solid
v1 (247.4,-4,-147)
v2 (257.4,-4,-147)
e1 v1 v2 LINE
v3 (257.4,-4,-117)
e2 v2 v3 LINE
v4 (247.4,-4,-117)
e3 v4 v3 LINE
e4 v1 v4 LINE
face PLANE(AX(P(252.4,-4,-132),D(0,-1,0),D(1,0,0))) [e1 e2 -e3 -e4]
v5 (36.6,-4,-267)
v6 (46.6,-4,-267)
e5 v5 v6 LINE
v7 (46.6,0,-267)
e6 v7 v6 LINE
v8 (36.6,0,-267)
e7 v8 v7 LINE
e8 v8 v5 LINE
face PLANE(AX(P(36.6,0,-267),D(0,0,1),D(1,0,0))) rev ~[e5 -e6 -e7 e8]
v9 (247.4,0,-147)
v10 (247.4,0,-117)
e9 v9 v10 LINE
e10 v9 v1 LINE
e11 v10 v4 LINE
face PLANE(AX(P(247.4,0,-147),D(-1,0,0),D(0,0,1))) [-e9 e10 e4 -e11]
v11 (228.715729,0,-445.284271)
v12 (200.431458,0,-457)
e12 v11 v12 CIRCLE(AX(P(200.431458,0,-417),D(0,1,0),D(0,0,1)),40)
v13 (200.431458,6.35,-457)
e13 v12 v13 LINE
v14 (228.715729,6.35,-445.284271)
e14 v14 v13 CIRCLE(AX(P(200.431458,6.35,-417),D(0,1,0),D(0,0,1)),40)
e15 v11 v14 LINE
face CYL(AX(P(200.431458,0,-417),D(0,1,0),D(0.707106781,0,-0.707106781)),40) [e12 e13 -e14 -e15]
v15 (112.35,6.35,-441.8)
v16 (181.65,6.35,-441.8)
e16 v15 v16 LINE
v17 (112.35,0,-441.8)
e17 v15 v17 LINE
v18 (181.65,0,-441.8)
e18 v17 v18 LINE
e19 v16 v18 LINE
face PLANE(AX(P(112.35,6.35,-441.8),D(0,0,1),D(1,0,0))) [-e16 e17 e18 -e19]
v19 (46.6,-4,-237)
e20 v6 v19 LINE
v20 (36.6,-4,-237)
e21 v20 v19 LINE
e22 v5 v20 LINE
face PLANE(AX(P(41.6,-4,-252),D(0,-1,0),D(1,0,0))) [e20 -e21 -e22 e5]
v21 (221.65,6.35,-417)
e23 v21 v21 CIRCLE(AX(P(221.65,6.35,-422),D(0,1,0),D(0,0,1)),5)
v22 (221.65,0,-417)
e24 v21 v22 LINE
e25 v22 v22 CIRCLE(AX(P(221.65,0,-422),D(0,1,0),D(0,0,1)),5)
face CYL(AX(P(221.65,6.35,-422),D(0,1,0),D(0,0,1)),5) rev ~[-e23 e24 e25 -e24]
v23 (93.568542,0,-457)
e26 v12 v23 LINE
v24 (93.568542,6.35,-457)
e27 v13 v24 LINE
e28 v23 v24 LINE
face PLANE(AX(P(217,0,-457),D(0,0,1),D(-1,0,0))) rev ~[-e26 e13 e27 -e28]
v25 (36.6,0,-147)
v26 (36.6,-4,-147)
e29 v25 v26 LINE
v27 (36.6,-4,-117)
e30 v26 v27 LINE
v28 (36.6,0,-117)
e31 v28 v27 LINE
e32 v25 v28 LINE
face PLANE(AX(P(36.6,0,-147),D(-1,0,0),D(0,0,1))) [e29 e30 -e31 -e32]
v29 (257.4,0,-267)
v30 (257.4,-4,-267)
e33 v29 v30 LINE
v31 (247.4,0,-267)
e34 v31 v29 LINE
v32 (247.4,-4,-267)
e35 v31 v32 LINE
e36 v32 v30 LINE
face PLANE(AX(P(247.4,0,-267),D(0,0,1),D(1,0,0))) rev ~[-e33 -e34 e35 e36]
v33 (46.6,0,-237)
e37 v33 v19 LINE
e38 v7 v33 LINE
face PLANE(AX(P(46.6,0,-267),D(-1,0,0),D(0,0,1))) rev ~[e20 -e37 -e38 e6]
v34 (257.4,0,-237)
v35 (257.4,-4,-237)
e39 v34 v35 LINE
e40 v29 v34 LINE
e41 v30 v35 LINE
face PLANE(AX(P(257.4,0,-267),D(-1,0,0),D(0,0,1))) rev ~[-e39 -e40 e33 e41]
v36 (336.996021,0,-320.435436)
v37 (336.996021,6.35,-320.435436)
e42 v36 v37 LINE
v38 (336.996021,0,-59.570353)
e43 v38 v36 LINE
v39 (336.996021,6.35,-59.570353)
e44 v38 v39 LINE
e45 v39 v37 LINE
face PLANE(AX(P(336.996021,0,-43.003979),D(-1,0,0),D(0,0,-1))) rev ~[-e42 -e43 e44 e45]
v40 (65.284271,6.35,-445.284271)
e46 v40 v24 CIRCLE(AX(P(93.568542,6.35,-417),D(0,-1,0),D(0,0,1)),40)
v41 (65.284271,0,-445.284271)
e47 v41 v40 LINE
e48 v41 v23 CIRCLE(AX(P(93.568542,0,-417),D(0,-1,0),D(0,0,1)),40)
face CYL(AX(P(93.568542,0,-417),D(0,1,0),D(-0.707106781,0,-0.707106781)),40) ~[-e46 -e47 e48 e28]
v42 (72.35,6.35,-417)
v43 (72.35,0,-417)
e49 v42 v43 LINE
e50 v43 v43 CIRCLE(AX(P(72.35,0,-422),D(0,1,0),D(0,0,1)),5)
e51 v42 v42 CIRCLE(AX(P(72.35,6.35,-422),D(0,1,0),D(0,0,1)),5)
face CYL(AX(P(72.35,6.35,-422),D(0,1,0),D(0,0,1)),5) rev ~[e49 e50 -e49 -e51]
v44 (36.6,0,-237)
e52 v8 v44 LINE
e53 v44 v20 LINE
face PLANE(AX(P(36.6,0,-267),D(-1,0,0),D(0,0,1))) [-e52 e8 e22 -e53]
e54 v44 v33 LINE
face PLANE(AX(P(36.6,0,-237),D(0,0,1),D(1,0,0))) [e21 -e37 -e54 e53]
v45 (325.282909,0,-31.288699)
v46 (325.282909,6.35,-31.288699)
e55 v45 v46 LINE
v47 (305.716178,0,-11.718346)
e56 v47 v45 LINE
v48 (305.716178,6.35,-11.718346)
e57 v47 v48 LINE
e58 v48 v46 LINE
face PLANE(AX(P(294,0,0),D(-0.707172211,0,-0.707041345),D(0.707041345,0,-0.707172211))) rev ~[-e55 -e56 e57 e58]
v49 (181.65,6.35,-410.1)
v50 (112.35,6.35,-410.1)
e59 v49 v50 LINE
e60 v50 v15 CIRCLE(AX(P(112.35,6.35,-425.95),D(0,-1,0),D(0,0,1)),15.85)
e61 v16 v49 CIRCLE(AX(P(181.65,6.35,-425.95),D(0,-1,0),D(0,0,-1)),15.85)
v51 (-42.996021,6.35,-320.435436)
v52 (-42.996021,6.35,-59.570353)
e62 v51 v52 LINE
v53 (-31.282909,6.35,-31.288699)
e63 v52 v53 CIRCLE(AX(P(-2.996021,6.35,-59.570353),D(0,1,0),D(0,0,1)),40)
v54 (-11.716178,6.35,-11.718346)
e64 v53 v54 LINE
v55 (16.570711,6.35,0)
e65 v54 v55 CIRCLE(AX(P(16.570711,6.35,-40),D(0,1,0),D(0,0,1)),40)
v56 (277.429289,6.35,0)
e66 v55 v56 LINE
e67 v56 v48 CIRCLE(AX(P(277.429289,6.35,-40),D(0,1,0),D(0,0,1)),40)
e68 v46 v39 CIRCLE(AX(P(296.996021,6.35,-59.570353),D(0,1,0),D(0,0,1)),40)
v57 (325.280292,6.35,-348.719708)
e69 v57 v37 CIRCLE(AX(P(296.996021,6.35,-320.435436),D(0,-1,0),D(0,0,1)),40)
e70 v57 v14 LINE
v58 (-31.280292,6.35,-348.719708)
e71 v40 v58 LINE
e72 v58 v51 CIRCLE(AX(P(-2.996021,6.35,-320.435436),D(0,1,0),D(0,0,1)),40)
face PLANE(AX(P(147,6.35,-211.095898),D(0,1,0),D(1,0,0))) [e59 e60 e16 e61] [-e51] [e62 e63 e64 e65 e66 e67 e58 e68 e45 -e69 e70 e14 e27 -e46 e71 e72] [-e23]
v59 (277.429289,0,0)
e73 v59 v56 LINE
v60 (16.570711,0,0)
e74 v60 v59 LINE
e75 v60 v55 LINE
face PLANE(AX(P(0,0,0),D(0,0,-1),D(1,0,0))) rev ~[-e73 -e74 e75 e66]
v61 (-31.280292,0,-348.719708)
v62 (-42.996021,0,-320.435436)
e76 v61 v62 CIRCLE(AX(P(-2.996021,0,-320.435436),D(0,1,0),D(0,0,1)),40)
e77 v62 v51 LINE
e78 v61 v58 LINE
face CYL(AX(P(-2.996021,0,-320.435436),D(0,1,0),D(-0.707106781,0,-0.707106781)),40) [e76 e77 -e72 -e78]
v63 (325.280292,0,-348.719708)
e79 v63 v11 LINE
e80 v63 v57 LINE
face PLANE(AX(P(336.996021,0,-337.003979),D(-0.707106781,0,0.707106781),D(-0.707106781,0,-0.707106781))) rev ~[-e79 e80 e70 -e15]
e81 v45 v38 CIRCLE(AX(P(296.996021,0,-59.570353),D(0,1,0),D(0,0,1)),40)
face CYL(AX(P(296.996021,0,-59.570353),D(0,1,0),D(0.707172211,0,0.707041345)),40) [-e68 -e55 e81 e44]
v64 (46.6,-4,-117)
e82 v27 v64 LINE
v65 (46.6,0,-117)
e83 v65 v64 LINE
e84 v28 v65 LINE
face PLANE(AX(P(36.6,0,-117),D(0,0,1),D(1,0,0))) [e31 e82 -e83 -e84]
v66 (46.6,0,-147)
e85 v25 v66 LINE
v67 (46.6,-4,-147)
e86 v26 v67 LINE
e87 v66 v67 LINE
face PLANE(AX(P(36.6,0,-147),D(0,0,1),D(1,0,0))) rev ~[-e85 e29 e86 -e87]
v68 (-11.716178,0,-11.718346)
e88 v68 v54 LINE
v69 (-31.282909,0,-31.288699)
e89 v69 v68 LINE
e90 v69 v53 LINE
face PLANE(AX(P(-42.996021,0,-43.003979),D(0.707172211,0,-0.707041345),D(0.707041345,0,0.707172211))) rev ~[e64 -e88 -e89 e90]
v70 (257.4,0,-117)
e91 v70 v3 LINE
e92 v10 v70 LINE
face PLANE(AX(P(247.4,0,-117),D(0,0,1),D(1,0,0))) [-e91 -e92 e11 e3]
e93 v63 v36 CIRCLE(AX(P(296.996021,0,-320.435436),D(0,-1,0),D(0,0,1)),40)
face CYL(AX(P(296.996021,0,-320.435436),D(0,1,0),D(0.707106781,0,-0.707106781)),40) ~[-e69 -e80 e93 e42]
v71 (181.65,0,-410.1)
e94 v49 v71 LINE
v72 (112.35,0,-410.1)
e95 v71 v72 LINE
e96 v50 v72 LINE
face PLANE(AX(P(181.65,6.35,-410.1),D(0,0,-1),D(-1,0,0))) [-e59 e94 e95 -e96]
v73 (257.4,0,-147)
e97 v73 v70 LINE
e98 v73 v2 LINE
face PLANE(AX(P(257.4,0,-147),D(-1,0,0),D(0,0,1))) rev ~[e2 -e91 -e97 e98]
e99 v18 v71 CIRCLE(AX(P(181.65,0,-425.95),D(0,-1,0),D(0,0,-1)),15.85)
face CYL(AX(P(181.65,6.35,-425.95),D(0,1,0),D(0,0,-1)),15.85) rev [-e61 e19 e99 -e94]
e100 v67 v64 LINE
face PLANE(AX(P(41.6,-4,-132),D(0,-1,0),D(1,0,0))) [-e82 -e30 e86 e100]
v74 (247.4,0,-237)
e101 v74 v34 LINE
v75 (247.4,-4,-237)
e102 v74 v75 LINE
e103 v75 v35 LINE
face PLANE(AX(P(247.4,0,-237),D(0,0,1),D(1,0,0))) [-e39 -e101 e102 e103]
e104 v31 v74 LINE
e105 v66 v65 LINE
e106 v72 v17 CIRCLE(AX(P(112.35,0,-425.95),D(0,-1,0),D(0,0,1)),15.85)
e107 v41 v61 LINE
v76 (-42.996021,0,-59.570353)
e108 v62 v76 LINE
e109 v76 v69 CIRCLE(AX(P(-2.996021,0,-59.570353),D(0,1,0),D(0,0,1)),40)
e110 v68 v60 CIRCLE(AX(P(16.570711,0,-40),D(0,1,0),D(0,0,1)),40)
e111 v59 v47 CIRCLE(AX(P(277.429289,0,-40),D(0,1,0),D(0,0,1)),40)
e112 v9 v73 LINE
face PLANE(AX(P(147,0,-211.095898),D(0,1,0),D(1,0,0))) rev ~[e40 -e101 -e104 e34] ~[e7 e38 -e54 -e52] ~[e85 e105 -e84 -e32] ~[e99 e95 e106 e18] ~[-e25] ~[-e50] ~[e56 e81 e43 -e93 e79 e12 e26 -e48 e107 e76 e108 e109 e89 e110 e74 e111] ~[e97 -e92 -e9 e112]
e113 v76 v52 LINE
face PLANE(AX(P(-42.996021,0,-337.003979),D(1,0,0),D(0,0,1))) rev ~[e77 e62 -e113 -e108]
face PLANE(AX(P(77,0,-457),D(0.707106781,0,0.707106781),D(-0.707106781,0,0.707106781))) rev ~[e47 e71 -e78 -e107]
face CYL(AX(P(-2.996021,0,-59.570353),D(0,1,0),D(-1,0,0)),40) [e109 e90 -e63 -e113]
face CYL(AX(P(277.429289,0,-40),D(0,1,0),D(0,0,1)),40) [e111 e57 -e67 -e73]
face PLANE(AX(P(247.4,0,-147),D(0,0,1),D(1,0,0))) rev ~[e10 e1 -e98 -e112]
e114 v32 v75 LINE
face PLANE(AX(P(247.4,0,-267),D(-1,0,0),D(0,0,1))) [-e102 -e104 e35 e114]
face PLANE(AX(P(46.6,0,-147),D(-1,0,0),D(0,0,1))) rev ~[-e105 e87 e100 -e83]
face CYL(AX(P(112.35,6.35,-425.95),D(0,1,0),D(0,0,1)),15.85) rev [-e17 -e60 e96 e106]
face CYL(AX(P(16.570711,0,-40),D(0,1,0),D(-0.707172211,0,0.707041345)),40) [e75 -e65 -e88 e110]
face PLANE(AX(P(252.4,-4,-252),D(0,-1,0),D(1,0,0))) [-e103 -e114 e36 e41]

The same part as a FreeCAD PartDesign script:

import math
import FreeCAD as App
import Part
import Sketcher

V = App.Vector


def edges_at(feature, points):
    """Names of the edges that pass closest to the given points."""
    edges = feature.Shape.Edges
    near = lambda p: min(range(len(edges)), key=lambda i: edges[i].distToShape(Part.Vertex(*p))[0])
    return sorted({f"Edge{near(p) + 1}" for p in points})


def add_polygon(sketch, points):
    """Adds a closed chain of lines whose ends are joined by coincident constraints."""
    first, n = sketch.GeometryCount, len(points)
    for a, b in zip(points, points[1:] + points[:1]):
        sketch.addGeometry(Part.LineSegment(App.Vector(*a, 0), App.Vector(*b, 0)), False)
    for i in range(n):
        sketch.addConstraint(Sketcher.Constraint("Coincident", first + i, 2, first + (i + 1) % n, 1))

doc = App.newDocument("Part")
body = doc.addObject("PartDesign::Body", "Body")

sketch1 = body.newObject("Sketcher::SketchObject", "Sketch")
sketch1.AttachmentSupport = (doc.getObject("XZ_Plane"), [""])
sketch1.MapMode = "FlatFace"
add_polygon(sketch1, [(0, 0), (294, 0), (337, -43), (337, -337), (217, -457), (77, -457), (-43, -337), (-43, -43)])
sketch1.addConstraint([
    Sketcher.Constraint("Horizontal", 0),
    Sketcher.Constraint("Vertical", 2),
    Sketcher.Constraint("Horizontal", 4),
    Sketcher.Constraint("Vertical", 6),
    Sketcher.Constraint("Coincident", 7, 2, -1, 1),
    Sketcher.Constraint("Perpendicular", 3, 5),
    Sketcher.Constraint("Horizontal", 2, 2, 5, 2),
    Sketcher.Constraint("Horizontal", 1, 2, 6, 2),
    Sketcher.Constraint("Equal", 0, 2),
    Sketcher.Constraint("Equal", 3, 5),
    Sketcher.Constraint("Equal", 1, 7),
    Sketcher.Constraint("DistanceX", 0, 1, 0, 2, 294.0),
    Sketcher.Constraint("DistanceX", 4, 2, 4, 1, 140.0),
    Sketcher.Constraint("DistanceY", 3, 2, -1, 1, 457.0),
    Sketcher.Constraint("Distance", 3, 169.7),
])
pad1 = body.newObject("PartDesign::Pad", "Pad")
pad1.Profile = sketch1
pad1.Length = 6.35
pad1.Reversed = True

sketch2 = body.newObject("Sketcher::SketchObject", "Sketch001")
sketch2.AttachmentSupport = (doc.getObject("XZ_Plane"), [""])
sketch2.MapMode = "FlatFace"
sketch2.AttachmentOffset = App.Placement(V(0, 0, -6.35), App.Rotation())
sketch2.addGeometry([
    Part.LineSegment(V(182, -442, 0), V(112, -442, 0)),
    Part.ArcOfCircle(Part.Circle(V(112, -426, 0), V(0, 0, 1), 16), math.radians(90), math.radians(270)),
    Part.LineSegment(V(112, -410, 0), V(182, -410, 0)),
    Part.ArcOfCircle(Part.Circle(V(182, -426, 0), V(0, 0, 1), 16), math.radians(-90), math.radians(90)),
], False)
sketch2.addConstraint([
    Sketcher.Constraint("Tangent", 0, 2, 1, 2),
    Sketcher.Constraint("Tangent", 1, 1, 2, 1),
    Sketcher.Constraint("Tangent", 2, 2, 3, 2),
    Sketcher.Constraint("Tangent", 3, 1, 0, 1),
    Sketcher.Constraint("Horizontal", 0),
    Sketcher.Constraint("Horizontal", 2),
    Sketcher.Constraint("Radius", 1, 15.85),
    Sketcher.Constraint("DistanceX", 0, 2, 0, 1, 69.3),
    Sketcher.Constraint("DistanceY", 0, 2, -1, 1, 441.8),
    Sketcher.Constraint("DistanceX", -1, 1, 1, 3, 112.35),
])
pocket1 = body.newObject("PartDesign::Pocket", "Pocket")
pocket1.Profile = sketch2
pocket1.Length = 6.35
pocket1.Reversed = True

sketch3 = body.newObject("Sketcher::SketchObject", "Sketch002")
sketch3.AttachmentSupport = (doc.getObject("XZ_Plane"), [""])
sketch3.MapMode = "FlatFace"
sketch3.AttachmentOffset = App.Placement(V(0, 0, -6.35), App.Rotation())
sketch3.addGeometry([
    Part.Circle(V(222, -422, 0), V(0, 0, 1), 5),
    Part.Circle(V(72, -422, 0), V(0, 0, 1), 5),
], False)
sketch3.addConstraint([
    Sketcher.Constraint("Equal", 0, 1),
    Sketcher.Constraint("Horizontal", 0, 3, 1, 3),
    Sketcher.Constraint("Diameter", 0, 10.0),
    Sketcher.Constraint("DistanceY", 0, 3, -1, 1, 422.0),
    Sketcher.Constraint("DistanceX", 1, 3, 0, 3, 149.3),
    Sketcher.Constraint("DistanceX", -1, 1, 0, 3, 221.65),
])
pocket2 = body.newObject("PartDesign::Pocket", "Pocket001")
pocket2.Profile = sketch3
pocket2.Length = 6.36
pocket2.Reversed = True
doc.recompute()

fillet = body.newObject("PartDesign::Fillet", "Fillet")
fillet.Base = (pocket2, edges_at(pocket2, [(77, 3.175, -457), (217, 3.175, -457)]))
fillet.Radius = 40
doc.recompute()

fillet2 = body.newObject("PartDesign::Fillet", "Fillet001")
fillet2.Base = (fillet, edges_at(fillet, [
    (-42.996, 3.175, -43.004),
    (-42.996, 3.175, -337.004),
    (336.996, 3.175, -337.004),
    (336.996, 3.175, -43.004),
    (294, 3.175, 0),
    (0, 3.175, 0),
]))
fillet2.Radius = 40

sketch4 = body.newObject("Sketcher::SketchObject", "Sketch003")
sketch4.AttachmentSupport = (doc.getObject("XZ_Plane"), [""])
sketch4.MapMode = "FlatFace"
add_polygon(sketch4, [(247, -237), (247, -267), (257, -267), (257, -237)])
add_polygon(sketch4, [(37, -117), (37, -147), (47, -147), (47, -117)])
add_polygon(sketch4, [(37, -237), (37, -267), (47, -267), (47, -237)])
add_polygon(sketch4, [(247, -117), (247, -147), (257, -147), (257, -117)])
sketch4.addConstraint([
    Sketcher.Constraint("Vertical", 0),
    Sketcher.Constraint("Horizontal", 1),
    Sketcher.Constraint("Vertical", 2),
    Sketcher.Constraint("Horizontal", 3),
    Sketcher.Constraint("Vertical", 4),
    Sketcher.Constraint("Horizontal", 5),
    Sketcher.Constraint("Vertical", 6),
    Sketcher.Constraint("Horizontal", 7),
    Sketcher.Constraint("Vertical", 8),
    Sketcher.Constraint("Horizontal", 9),
    Sketcher.Constraint("Vertical", 10),
    Sketcher.Constraint("Horizontal", 11),
    Sketcher.Constraint("Vertical", 12),
    Sketcher.Constraint("Horizontal", 13),
    Sketcher.Constraint("Vertical", 14),
    Sketcher.Constraint("Horizontal", 15),
    Sketcher.Constraint("Horizontal", 1, 2, 8, 2),
    Sketcher.Constraint("Horizontal", 3, 2, 10, 2),
    Sketcher.Constraint("Horizontal", 5, 2, 12, 2),
    Sketcher.Constraint("Horizontal", 7, 2, 14, 2),
    Sketcher.Constraint("Vertical", 7, 2, 8, 2),
    Sketcher.Constraint("Vertical", 6, 2, 9, 2),
    Sketcher.Constraint("Vertical", 3, 2, 12, 2),
    Sketcher.Constraint("Vertical", 2, 2, 13, 2),
    Sketcher.Constraint("Equal", 3, 5),
    Sketcher.Constraint("Equal", 2, 4),
    Sketcher.Constraint("DistanceX", 1, 1, 1, 2, 10.0),
    Sketcher.Constraint("DistanceY", 0, 2, 0, 1, 30.0),
    Sketcher.Constraint("DistanceY", 0, 2, -1, 1, 267.0),
    Sketcher.Constraint("DistanceY", 4, 2, -1, 1, 147.0),
    Sketcher.Constraint("DistanceX", -1, 1, 0, 2, 247.4),
    Sketcher.Constraint("DistanceX", -1, 1, 4, 2, 36.6),
])
pad2 = body.newObject("PartDesign::Pad", "Pad001")
pad2.Profile = sketch4
pad2.Length = 4

doc.recompute()
